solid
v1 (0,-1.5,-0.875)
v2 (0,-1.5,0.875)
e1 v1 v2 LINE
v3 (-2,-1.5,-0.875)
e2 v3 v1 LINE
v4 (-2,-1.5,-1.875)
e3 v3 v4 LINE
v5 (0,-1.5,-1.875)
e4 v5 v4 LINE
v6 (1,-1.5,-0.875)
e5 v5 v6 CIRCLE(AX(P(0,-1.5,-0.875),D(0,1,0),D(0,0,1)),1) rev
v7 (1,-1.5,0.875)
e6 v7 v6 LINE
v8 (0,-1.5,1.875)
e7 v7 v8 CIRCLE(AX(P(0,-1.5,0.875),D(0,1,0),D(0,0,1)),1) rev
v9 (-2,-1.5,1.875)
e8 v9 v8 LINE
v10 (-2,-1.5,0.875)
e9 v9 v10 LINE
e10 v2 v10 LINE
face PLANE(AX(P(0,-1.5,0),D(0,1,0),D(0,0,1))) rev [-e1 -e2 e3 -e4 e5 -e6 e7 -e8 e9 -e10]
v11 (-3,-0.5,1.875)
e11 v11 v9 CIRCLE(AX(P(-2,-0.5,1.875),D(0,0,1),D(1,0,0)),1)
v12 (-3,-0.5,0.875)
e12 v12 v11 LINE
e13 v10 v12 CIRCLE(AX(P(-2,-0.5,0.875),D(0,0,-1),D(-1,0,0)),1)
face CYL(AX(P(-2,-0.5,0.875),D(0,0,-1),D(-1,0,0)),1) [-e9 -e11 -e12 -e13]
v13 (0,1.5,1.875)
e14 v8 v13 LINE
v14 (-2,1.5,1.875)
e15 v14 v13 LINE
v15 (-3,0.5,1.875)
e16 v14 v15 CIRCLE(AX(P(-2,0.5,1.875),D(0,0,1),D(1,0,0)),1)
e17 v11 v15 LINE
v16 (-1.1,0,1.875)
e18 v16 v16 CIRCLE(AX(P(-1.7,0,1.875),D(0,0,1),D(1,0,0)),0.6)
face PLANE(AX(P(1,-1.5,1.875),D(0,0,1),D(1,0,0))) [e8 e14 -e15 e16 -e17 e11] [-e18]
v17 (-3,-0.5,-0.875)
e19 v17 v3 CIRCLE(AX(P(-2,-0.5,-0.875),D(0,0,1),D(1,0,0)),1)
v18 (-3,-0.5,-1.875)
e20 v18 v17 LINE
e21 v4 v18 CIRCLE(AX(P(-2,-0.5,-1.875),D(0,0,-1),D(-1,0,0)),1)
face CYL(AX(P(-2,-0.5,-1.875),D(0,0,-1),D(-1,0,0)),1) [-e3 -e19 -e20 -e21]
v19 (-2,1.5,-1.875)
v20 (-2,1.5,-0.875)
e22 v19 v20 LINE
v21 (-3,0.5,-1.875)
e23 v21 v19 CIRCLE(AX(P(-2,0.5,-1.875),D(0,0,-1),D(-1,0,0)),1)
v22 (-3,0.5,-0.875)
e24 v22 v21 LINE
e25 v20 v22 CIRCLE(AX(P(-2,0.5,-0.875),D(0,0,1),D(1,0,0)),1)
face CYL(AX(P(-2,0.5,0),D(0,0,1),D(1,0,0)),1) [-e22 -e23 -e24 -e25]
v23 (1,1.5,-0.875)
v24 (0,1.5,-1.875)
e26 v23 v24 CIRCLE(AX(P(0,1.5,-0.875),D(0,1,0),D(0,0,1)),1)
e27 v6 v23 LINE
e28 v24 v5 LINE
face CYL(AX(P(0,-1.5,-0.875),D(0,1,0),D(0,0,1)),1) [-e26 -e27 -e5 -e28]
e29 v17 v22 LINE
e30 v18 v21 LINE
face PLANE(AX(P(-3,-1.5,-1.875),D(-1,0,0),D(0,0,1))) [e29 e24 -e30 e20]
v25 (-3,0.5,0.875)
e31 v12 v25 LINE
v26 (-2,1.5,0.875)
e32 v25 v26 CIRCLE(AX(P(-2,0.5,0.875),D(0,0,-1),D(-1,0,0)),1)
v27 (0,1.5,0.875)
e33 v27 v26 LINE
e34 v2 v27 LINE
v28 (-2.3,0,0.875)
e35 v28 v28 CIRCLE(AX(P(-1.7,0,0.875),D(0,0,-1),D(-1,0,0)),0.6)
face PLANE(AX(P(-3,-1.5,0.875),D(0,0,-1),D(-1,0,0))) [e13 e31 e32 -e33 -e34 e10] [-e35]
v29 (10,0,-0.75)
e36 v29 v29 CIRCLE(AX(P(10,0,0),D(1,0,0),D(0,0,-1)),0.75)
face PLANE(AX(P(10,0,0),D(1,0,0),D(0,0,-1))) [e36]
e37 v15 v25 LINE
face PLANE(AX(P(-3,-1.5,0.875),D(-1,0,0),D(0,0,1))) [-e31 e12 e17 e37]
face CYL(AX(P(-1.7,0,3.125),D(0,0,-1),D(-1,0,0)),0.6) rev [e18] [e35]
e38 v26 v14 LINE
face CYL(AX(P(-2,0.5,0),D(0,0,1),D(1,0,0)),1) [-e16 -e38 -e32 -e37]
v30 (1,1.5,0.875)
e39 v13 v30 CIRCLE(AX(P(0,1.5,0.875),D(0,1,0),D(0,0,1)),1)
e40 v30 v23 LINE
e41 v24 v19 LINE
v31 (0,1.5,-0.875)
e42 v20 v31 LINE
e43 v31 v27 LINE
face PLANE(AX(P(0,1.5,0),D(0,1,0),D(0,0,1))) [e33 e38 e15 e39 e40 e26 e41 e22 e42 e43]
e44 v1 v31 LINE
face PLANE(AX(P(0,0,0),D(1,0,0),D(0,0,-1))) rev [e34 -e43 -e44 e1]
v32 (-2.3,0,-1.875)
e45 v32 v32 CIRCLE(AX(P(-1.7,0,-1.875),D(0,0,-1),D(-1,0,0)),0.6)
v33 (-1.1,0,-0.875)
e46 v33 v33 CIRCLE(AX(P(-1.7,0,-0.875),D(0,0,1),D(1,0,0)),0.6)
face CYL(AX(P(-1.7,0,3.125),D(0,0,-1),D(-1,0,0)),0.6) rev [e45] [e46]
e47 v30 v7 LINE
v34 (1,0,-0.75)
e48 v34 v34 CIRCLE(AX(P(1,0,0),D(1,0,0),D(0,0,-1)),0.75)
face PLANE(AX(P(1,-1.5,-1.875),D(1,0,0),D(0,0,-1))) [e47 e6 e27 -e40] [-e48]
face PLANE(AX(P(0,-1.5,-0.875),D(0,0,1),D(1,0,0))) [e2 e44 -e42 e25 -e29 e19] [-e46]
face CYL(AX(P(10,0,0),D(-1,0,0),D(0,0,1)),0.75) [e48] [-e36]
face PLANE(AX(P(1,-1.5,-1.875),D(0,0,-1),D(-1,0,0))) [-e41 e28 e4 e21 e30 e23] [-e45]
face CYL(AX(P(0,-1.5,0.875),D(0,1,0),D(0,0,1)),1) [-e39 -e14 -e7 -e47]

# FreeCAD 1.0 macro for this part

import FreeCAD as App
import Part
import Sketcher

V = App.Vector


def edges_at(feature, points):
    """Names of the edges that pass closest to the given points."""
    edges = feature.Shape.Edges
    near = lambda p: min(range(len(edges)), key=lambda i: edges[i].distToShape(Part.Vertex(*p))[0])
    return sorted({f"Edge{near(p) + 1}" for p in points})


def add_polygon(sketch, points):
    """Adds a closed chain of lines whose ends are joined by coincident constraints."""
    first, n = sketch.GeometryCount, len(points)
    for a, b in zip(points, points[1:] + points[:1]):
        sketch.addGeometry(Part.LineSegment(App.Vector(*a, 0), App.Vector(*b, 0)), False)
    for i in range(n):
        sketch.addConstraint(Sketcher.Constraint("Coincident", first + i, 2, first + (i + 1) % n, 1))

doc = App.newDocument("Part")
body = doc.addObject("PartDesign::Body", "Body")

# Sketch on YZ plane
sketch1 = body.newObject("Sketcher::SketchObject", "Sketch")
sketch1.AttachmentSupport = (doc.getObject("YZ_Plane"), [""])
sketch1.MapMode = "FlatFace"
sketch1.addGeometry(Part.Circle(V(0, 0, 0), V(0, 0, 1), 0.8), False)
sketch1.addConstraint([
    Sketcher.Constraint("Coincident", 0, 3, -1, 1),
    Sketcher.Constraint("Diameter", 0, 1.5),
])
pad1 = body.newObject("PartDesign::Pad", "Pad")
pad1.Profile = sketch1
pad1.Length = 10

# Sketch on XZ plane
sketch2 = body.newObject("Sketcher::SketchObject", "Sketch001")
sketch2.AttachmentSupport = (doc.getObject("XZ_Plane"), [""])
sketch2.MapMode = "FlatFace"
add_polygon(sketch2, [(1, 1.9), (1, -1.9), (-3, -1.9), (-3, -0.9), (0, -0.9), (0, 0.9), (-3, 0.9), (-3, 1.9)])  # lines 0-7
sketch2.addConstraint([
    Sketcher.Constraint("Vertical", 0),
    Sketcher.Constraint("Horizontal", 1),
    Sketcher.Constraint("Vertical", 2),
    Sketcher.Constraint("Horizontal", 3),
    Sketcher.Constraint("Vertical", 4),
    Sketcher.Constraint("Horizontal", 5),
    Sketcher.Constraint("Vertical", 6),
    Sketcher.Constraint("Horizontal", 7),
    Sketcher.Constraint("Symmetric", 3, 2, 4, 2, -1, 1),
    Sketcher.Constraint("Symmetric", 1, 2, 6, 2, -1),
    Sketcher.Constraint("DistanceX", 1, 2, 1, 1, 4.0),
    Sketcher.Constraint("DistanceX", 3, 1, 3, 2, 3.0),
    Sketcher.Constraint("DistanceY", 2, 1, 2, 2, 1.0),
    Sketcher.Constraint("DistanceY", 0, 2, 0, 1, 3.75),
])
pad2 = body.newObject("PartDesign::Pad", "Pad001")
pad2.Profile = sketch2
pad2.Type = "TwoLengths"
pad2.Length = 1.5
pad2.Length2 = 1.5
pad2.Reversed = True
doc.recompute()

fillet = body.newObject("PartDesign::Fillet", "Fillet")
fillet.Base = (pad2, edges_at(pad2, [
    (-3, 1.5, 1.375),
    (-3, 1.5, -1.375),
    (-3, -1.5, -1.375),
    (1, 0, -1.875),
    (1, 0, 1.875),
    (-3, -1.5, 1.375),
]))
fillet.Radius = 1

# Sketch on XY plane
sketch3 = body.newObject("Sketcher::SketchObject", "Sketch002")
sketch3.AttachmentSupport = (doc.getObject("XY_Plane"), [""])
sketch3.MapMode = "FlatFace"
sketch3.AttachmentOffset = App.Placement(V(0, 0, -1.875), App.Rotation())
sketch3.addGeometry(Part.Circle(V(-1.7, 0, 0), V(0, 0, 1), 0.6), False)
sketch3.addConstraint([
    Sketcher.Constraint("PointOnObject", 0, 3, -1),
    Sketcher.Constraint("Diameter", 0, 1.2),
    Sketcher.Constraint("DistanceX", 0, 3, -1, 1, 1.7),
])
pocket1 = body.newObject("PartDesign::Pocket", "Pocket")
pocket1.Profile = sketch3
pocket1.Length = 5
pocket1.Reversed = True

doc.recompute()
